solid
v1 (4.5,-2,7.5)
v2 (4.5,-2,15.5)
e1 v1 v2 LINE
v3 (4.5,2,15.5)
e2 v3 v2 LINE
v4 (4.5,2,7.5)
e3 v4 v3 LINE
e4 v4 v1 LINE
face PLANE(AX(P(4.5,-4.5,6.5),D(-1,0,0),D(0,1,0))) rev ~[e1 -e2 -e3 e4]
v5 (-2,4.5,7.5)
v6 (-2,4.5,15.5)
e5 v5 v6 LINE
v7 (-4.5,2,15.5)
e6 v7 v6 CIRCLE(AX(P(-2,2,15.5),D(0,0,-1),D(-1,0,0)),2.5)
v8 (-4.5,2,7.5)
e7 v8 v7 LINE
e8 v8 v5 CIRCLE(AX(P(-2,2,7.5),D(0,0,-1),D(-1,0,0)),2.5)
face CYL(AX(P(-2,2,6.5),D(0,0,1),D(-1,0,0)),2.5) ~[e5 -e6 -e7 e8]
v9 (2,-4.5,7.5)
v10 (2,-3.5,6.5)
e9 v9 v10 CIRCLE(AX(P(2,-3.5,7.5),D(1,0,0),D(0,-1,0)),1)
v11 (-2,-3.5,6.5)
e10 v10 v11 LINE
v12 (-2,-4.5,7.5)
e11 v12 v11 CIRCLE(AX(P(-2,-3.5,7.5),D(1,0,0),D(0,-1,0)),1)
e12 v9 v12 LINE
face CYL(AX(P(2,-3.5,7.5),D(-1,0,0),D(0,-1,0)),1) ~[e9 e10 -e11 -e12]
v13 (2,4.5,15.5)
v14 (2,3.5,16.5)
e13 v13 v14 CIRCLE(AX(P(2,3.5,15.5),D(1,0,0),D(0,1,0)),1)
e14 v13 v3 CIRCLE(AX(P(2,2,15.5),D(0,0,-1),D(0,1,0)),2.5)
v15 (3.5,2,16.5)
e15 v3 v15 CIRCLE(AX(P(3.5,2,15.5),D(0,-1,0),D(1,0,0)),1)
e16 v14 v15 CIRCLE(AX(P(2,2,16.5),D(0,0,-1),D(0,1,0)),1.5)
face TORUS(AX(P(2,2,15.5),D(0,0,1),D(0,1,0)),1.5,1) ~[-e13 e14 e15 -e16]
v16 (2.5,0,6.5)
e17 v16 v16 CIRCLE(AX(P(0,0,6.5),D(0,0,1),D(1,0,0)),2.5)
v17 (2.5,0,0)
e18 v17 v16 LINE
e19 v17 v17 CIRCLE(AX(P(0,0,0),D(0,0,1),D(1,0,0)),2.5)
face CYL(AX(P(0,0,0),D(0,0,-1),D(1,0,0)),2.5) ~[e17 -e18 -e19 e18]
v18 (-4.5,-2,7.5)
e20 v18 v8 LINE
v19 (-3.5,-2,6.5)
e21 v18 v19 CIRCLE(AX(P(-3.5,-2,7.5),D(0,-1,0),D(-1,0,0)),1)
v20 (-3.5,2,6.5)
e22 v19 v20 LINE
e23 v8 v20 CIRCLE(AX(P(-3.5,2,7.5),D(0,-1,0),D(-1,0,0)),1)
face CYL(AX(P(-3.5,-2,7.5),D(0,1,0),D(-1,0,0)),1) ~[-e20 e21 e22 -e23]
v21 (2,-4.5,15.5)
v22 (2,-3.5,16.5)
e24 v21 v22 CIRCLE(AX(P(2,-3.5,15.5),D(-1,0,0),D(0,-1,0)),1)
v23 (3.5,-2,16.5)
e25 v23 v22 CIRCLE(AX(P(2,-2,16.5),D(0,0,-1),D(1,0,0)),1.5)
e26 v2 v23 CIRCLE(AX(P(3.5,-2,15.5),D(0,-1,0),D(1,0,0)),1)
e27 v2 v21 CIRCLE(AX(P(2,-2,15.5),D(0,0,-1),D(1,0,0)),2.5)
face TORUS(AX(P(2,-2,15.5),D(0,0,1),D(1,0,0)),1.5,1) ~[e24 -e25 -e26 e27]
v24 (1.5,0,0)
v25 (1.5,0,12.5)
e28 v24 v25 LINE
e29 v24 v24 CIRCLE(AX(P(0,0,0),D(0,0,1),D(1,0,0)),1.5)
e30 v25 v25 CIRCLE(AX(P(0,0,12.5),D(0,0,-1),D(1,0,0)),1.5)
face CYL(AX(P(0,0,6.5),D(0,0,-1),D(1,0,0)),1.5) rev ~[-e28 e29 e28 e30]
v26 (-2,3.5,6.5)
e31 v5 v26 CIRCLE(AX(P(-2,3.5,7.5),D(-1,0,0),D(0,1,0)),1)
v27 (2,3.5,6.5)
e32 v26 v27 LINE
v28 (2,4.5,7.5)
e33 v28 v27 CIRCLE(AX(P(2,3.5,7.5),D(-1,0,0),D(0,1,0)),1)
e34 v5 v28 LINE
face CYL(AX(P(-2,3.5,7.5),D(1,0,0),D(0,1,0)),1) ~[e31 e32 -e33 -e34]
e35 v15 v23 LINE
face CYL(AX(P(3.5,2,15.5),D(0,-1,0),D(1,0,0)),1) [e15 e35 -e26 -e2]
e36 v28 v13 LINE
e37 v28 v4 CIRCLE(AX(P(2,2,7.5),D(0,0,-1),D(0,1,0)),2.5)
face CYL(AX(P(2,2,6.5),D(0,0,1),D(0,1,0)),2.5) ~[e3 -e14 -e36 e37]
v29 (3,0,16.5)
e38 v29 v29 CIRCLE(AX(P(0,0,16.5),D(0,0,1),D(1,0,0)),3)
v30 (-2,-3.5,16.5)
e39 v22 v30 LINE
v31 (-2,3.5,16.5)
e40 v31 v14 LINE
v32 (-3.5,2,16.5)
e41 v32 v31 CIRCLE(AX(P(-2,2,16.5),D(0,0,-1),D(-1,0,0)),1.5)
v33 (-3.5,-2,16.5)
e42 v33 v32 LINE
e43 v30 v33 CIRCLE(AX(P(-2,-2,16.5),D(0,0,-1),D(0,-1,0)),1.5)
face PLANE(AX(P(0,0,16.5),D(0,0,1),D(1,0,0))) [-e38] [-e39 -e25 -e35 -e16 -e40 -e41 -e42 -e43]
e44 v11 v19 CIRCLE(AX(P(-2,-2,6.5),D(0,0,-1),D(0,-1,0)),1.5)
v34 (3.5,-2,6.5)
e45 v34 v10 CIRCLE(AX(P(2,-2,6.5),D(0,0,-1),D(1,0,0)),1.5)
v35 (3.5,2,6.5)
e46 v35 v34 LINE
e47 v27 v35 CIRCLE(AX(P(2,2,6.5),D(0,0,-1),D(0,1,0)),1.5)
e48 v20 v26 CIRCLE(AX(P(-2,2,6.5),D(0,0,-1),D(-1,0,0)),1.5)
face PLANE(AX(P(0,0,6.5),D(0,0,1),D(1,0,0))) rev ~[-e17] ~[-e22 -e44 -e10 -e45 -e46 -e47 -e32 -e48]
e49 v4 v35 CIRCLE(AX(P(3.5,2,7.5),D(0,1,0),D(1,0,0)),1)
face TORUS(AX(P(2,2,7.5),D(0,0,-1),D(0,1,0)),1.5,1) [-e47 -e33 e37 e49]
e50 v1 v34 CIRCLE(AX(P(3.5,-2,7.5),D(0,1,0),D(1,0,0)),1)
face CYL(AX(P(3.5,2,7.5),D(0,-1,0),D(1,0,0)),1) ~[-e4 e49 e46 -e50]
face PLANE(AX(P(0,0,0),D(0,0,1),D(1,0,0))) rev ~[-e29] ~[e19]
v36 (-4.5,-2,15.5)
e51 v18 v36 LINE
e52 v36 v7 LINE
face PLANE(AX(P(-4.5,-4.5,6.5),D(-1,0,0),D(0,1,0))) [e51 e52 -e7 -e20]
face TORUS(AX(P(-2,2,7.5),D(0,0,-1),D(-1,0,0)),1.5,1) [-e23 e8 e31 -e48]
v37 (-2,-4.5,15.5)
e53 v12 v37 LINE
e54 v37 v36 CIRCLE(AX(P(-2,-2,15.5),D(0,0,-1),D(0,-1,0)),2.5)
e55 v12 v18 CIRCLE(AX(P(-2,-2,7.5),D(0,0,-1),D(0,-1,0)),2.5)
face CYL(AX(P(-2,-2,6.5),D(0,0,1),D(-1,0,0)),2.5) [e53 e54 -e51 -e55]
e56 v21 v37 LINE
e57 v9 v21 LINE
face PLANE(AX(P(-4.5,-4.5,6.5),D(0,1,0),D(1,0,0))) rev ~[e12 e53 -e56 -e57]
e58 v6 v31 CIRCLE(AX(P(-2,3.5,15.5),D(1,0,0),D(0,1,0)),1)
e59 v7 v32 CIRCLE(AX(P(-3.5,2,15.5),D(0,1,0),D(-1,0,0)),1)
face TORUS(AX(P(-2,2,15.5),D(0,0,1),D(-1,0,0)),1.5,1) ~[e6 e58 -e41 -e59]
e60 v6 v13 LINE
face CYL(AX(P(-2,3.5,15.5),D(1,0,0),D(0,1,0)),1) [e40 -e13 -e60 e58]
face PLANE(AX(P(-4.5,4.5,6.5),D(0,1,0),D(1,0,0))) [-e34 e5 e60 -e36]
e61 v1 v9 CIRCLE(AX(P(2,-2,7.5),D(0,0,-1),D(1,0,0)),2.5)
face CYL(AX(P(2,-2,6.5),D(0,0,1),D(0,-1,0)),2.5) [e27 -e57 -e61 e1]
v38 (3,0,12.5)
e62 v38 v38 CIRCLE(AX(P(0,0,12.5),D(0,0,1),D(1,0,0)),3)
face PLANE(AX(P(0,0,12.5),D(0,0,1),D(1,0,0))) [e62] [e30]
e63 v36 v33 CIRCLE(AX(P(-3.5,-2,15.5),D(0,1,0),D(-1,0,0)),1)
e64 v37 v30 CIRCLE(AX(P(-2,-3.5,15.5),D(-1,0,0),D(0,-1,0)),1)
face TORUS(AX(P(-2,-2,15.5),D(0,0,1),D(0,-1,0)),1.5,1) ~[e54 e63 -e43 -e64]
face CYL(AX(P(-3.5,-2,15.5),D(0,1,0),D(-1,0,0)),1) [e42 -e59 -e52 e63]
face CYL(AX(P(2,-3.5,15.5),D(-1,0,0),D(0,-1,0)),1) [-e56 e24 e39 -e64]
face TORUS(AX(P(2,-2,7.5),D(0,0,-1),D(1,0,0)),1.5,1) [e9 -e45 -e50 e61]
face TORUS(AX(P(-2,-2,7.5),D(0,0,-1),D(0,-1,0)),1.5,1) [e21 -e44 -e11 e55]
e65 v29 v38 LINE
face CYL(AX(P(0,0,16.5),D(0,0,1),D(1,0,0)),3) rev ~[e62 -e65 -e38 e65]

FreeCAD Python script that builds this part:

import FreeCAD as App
import Part
import Sketcher

V = App.Vector


def edges_at(feature, points):
    """Names of the edges that pass closest to the given points."""
    edges = feature.Shape.Edges
    near = lambda p: min(range(len(edges)), key=lambda i: edges[i].distToShape(Part.Vertex(*p))[0])
    return sorted({f"Edge{near(p) + 1}" for p in points})


def add_polygon(sketch, points):
    """Adds a closed chain of lines whose ends are joined by coincident constraints."""
    first, n = sketch.GeometryCount, len(points)
    for a, b in zip(points, points[1:] + points[:1]):
        sketch.addGeometry(Part.LineSegment(App.Vector(*a, 0), App.Vector(*b, 0)), False)
    for i in range(n):
        sketch.addConstraint(Sketcher.Constraint("Coincident", first + i, 2, first + (i + 1) % n, 1))

doc = App.newDocument("Part")
body = doc.addObject("PartDesign::Body", "Body")

# Sketch on XY plane
sketch1 = doc.addObject("Sketcher::SketchObject", "Sketch")
body.addObject(sketch1)
sketch1.AttachmentSupport = (doc.XY_Plane, [""])
sketch1.MapMode = "FlatFace"
sketch1.addGeometry([
    Part.Circle(V(0, 0, 0), V(0, 0, 1), 2.5),
    Part.Circle(V(0, 0, 0), V(0, 0, 1), 1.5),
], False)
sketch1.addConstraint([
    Sketcher.Constraint("Coincident", 0, 3, -1, 1),
    Sketcher.Constraint("Coincident", 1, 3, -1, 1),
    Sketcher.Constraint("Diameter", 0, 5.0),
    Sketcher.Constraint("Diameter", 1, 3.0),
])
pad1 = doc.addObject("PartDesign::Pad", "Pad")
body.addObject(pad1)
pad1.Profile = sketch1
pad1.Length = 6.5

# Sketch on XY plane
sketch2 = doc.addObject("Sketcher::SketchObject", "Sketch001")
body.addObject(sketch2)
sketch2.AttachmentSupport = (doc.XY_Plane, [""])
sketch2.MapMode = "FlatFace"
sketch2.AttachmentOffset = App.Placement(V(0, 0, 6.5), App.Rotation())
add_polygon(sketch2, [(-4, 4), (-4, -4), (4, -4), (4, 4)])  # lines 0-3
sketch2.addConstraint([
    Sketcher.Constraint("Vertical", 0),
    Sketcher.Constraint("Horizontal", 1),
    Sketcher.Constraint("Vertical", 2),
    Sketcher.Constraint("Horizontal", 3),
    Sketcher.Constraint("Symmetric", 0, 2, 2, 2, -1, 1),
    Sketcher.Constraint("Equal", 3, 0),
    Sketcher.Constraint("DistanceX", 1, 1, 1, 2, 9.0),
])
pad2 = doc.addObject("PartDesign::Pad", "Pad001")
body.addObject(pad2)
pad2.Profile = sketch2
pad2.Length = 10
doc.recompute()

fillet = doc.addObject("PartDesign::Fillet", "Fillet")
body.addObject(fillet)
fillet.Base = (pad2, edges_at(pad2, [
    (-4.5, -4.5, 11.5),
    (4.5, -4.5, 11.5),
    (4.5, 4.5, 11.5),
    (-4.5, 4.5, 11.5),
]))
fillet.Radius = 2.5
doc.recompute()

fillet2 = doc.addObject("PartDesign::Fillet", "Fillet001")
body.addObject(fillet2)
fillet2.Base = (fillet, edges_at(fillet, [(-4.5, 0, 6.5), (-4.5, 0, 16.5)]))
fillet2.Radius = 1

# Sketch on XY plane
sketch3 = doc.addObject("Sketcher::SketchObject", "Sketch002")
body.addObject(sketch3)
sketch3.AttachmentSupport = (doc.XY_Plane, [""])
sketch3.MapMode = "FlatFace"
sketch3.AttachmentOffset = App.Placement(V(0, 0, 6.5), App.Rotation())
sketch3.addGeometry(Part.Circle(V(0, 0, 0), V(0, 0, 1), 1.5), False)
sketch3.addConstraint([
    Sketcher.Constraint("Coincident", 0, 3, -1, 1),
    Sketcher.Constraint("Diameter", 0, 3.0),
])
pocket1 = doc.addObject("PartDesign::Pocket", "Pocket")
body.addObject(pocket1)
pocket1.Profile = sketch3
pocket1.Length = 10
pocket1.Reversed = True

# Sketch on XY plane
sketch4 = doc.addObject("Sketcher::SketchObject", "Sketch003")
body.addObject(sketch4)
sketch4.AttachmentSupport = (doc.XY_Plane, [""])
sketch4.MapMode = "FlatFace"
sketch4.AttachmentOffset = App.Placement(V(0, 0, 16.5), App.Rotation())
sketch4.addGeometry(Part.Circle(V(0, 0, 0), V(0, 0, 1), 3), False)
sketch4.addConstraint([
    Sketcher.Constraint("Coincident", 0, 3, -1, 1),
    Sketcher.Constraint("Diameter", 0, 6.0),
])
pocket2 = doc.addObject("PartDesign::Pocket", "Pocket001")
body.addObject(pocket2)
pocket2.Profile = sketch4
pocket2.Length = 4

doc.recompute()
